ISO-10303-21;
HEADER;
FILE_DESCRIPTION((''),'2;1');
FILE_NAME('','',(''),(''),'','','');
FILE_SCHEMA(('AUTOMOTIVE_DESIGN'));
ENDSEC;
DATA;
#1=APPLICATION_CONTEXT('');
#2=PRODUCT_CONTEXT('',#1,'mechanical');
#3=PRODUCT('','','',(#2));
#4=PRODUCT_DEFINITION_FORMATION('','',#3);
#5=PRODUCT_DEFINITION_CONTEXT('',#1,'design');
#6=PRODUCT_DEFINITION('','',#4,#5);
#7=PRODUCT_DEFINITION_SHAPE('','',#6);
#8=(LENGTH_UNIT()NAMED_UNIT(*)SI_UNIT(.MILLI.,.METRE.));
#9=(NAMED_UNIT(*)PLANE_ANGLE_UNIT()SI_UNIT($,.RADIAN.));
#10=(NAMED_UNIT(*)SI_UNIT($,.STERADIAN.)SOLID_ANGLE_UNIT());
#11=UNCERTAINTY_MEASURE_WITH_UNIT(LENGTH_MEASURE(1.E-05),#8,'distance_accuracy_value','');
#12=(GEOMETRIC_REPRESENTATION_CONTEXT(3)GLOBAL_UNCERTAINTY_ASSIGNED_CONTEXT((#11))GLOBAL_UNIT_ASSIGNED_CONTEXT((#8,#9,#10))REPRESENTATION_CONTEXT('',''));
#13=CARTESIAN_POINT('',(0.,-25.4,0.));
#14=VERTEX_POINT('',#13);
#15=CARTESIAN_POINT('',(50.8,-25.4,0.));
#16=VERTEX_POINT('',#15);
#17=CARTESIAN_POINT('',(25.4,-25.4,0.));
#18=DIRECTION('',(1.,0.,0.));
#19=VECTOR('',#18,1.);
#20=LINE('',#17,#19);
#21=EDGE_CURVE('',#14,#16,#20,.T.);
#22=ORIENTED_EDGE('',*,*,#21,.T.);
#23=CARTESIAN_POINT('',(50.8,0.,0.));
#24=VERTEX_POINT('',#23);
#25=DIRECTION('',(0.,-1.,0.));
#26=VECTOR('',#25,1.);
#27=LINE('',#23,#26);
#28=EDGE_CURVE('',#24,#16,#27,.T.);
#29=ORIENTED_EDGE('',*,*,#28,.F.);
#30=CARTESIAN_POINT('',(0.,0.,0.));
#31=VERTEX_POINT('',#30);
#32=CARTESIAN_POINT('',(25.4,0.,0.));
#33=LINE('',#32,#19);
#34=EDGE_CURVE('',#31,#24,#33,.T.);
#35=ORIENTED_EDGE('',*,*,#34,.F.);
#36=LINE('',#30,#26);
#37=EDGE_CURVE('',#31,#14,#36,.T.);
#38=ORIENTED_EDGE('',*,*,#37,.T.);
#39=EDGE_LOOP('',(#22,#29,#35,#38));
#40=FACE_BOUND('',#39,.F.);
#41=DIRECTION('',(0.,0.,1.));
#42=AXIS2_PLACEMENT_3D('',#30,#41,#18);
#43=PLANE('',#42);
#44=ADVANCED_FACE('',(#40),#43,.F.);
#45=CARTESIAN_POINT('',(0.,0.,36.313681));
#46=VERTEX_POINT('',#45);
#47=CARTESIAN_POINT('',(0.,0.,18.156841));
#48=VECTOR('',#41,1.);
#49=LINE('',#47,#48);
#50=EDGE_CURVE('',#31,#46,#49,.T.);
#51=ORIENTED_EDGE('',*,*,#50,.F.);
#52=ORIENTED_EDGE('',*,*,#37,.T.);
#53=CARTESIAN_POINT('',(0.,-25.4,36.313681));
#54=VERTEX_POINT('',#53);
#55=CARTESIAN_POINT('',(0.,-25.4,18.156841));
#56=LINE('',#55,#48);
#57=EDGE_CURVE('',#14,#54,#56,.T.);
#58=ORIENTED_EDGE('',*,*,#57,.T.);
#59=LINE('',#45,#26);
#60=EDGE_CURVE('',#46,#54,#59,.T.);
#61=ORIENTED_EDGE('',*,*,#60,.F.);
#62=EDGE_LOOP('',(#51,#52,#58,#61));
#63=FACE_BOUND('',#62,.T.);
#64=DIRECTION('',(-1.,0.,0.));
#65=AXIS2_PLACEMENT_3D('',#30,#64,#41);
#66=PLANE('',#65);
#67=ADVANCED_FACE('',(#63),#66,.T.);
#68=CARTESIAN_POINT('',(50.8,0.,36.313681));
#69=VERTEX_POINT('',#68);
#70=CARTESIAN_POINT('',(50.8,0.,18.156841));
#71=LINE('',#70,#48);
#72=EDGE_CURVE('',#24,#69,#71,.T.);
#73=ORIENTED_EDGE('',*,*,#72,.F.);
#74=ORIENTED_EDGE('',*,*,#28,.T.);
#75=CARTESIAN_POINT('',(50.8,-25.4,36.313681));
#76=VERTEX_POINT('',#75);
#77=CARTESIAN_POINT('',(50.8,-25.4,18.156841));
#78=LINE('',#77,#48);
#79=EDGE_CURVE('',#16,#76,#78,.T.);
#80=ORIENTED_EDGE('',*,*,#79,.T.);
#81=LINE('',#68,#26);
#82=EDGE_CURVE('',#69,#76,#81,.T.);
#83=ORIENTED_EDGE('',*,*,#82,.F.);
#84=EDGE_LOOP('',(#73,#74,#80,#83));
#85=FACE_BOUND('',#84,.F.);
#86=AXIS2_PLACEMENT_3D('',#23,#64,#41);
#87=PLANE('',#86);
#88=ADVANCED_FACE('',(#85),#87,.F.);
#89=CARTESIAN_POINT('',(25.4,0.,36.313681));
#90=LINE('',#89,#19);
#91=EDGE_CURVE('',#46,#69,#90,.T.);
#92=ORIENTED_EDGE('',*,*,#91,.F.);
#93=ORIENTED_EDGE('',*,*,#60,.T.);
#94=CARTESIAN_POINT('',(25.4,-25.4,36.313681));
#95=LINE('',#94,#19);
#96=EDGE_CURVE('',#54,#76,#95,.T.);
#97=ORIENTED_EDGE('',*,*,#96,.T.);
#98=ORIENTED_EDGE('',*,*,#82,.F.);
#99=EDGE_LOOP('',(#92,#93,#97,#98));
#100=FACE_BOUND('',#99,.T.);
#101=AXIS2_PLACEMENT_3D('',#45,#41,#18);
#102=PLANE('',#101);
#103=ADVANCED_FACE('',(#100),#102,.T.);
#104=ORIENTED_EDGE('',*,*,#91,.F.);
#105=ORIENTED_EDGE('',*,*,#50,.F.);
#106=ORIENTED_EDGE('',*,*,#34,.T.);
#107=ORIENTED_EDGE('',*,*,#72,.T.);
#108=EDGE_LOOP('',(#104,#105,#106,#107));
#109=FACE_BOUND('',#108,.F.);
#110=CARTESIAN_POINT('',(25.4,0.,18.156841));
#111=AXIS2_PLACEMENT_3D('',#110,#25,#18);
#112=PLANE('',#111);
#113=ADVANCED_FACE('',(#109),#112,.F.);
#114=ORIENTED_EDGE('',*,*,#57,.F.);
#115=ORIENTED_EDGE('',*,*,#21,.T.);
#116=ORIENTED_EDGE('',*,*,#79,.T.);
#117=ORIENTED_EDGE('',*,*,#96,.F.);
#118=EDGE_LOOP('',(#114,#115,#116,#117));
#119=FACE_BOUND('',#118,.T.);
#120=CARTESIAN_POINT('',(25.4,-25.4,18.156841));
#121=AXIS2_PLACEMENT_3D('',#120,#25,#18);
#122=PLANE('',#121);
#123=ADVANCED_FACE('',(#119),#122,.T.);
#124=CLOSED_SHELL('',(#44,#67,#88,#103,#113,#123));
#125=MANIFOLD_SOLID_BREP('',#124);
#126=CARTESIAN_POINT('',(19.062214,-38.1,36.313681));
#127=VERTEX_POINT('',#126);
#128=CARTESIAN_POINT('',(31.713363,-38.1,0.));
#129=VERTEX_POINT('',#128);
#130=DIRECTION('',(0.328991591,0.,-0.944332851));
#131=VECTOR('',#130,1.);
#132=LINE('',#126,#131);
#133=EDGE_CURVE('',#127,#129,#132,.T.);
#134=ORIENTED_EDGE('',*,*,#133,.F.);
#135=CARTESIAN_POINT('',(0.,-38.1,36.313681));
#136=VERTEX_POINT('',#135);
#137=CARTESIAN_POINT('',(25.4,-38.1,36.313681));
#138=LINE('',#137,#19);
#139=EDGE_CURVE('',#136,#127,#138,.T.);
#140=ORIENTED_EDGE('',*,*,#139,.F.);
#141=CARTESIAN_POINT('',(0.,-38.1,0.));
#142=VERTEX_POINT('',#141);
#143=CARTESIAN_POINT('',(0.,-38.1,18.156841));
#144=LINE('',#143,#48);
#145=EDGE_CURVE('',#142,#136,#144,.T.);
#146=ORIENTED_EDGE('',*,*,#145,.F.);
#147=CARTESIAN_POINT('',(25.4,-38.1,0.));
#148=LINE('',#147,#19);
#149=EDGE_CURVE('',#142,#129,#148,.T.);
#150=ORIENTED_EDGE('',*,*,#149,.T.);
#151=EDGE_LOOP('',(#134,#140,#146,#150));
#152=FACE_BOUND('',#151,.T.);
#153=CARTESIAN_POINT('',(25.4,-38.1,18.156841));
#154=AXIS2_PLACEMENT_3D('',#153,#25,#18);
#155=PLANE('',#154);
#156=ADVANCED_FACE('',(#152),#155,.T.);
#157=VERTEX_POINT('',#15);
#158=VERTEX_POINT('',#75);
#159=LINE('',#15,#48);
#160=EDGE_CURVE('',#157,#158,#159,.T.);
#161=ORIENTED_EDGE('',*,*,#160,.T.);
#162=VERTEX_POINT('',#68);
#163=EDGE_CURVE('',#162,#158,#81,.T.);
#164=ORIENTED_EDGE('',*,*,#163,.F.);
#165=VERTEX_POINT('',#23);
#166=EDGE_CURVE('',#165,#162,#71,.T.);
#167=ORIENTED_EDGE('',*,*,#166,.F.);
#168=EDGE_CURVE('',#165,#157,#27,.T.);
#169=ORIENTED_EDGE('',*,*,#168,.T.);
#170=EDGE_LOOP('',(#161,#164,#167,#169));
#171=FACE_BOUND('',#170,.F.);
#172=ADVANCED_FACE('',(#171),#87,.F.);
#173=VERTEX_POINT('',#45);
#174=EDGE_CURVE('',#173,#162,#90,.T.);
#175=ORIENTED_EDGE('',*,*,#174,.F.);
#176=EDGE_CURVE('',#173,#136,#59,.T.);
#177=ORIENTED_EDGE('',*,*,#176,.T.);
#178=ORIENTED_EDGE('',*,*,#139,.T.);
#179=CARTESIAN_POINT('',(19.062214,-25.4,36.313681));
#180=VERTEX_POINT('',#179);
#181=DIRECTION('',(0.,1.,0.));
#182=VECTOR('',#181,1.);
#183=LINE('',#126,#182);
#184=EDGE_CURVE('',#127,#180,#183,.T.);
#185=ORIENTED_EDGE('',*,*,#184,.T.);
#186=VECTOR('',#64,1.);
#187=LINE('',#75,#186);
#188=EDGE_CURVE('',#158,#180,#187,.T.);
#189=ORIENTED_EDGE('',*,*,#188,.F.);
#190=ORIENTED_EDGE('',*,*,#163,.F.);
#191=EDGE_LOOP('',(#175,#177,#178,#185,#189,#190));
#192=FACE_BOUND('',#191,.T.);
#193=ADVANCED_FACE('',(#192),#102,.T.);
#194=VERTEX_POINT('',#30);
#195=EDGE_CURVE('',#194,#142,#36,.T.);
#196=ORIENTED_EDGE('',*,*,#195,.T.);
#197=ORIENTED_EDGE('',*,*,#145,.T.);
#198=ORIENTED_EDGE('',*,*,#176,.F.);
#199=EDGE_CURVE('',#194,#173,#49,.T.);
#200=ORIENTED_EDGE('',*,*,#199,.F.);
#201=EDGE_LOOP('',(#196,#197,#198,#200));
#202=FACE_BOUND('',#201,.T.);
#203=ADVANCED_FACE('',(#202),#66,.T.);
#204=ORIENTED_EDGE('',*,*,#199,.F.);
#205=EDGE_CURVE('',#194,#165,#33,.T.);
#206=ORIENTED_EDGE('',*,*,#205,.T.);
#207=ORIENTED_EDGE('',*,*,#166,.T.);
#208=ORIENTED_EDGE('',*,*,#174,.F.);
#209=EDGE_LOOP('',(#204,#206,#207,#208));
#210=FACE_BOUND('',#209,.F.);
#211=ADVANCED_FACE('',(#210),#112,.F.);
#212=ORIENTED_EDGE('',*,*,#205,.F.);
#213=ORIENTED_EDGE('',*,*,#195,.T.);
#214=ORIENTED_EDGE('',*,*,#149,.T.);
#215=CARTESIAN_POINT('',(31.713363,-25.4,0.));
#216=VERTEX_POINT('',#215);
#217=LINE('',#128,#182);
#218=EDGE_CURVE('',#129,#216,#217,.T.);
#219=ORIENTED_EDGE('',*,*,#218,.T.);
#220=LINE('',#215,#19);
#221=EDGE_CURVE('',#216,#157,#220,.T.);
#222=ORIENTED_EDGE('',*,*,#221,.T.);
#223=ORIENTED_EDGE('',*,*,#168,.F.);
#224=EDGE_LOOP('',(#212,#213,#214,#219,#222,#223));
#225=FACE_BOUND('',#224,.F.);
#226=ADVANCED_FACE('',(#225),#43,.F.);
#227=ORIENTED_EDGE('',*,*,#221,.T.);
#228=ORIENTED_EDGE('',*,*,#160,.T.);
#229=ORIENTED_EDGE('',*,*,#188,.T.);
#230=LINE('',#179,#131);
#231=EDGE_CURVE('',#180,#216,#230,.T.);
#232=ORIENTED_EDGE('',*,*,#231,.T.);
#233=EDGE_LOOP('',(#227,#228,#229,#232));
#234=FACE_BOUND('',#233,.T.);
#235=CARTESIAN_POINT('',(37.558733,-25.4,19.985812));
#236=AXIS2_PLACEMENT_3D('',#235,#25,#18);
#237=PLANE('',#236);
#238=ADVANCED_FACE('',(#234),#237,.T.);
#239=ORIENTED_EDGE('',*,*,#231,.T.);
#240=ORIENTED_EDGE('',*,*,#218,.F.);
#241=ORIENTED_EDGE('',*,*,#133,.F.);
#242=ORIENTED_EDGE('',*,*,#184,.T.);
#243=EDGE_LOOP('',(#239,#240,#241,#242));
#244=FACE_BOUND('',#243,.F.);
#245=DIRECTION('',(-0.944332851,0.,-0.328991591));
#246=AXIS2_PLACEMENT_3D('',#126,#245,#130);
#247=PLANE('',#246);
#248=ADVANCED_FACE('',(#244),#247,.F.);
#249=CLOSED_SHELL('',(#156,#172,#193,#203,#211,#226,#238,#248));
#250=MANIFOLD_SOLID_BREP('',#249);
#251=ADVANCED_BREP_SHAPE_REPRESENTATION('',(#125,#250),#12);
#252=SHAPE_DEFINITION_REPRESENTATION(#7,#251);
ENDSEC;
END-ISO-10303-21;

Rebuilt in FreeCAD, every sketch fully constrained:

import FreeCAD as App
import Part
import Sketcher

V = App.Vector
Q = App.Units.Quantity


def add_polygon(sketch, points):
    """Adds a closed chain of lines whose ends are joined by coincident constraints."""
    first, n = sketch.GeometryCount, len(points)
    for a, b in zip(points, points[1:] + points[:1]):
        sketch.addGeometry(Part.LineSegment(App.Vector(*a, 0), App.Vector(*b, 0)), False)
    for i in range(n):
        sketch.addConstraint(Sketcher.Constraint("Coincident", first + i, 2, first + (i + 1) % n, 1))

doc = App.newDocument("Part")
body = doc.addObject("PartDesign::Body", "Body")

sketch1 = body.newObject("Sketcher::SketchObject", "Sketch")
sketch1.AttachmentSupport = (doc.getObject("XZ_Plane"), [""])
sketch1.MapMode = "FlatFace"
add_polygon(sketch1, [(0, 36.313681), (0, 0), (50.8, 0), (50.8, 36.313681)])
sketch1.addConstraint(Sketcher.Constraint("Vertical", 0))
sketch1.addConstraint(Sketcher.Constraint("Horizontal", 1))
sketch1.addConstraint(Sketcher.Constraint("Vertical", 2))
sketch1.addConstraint(Sketcher.Constraint("Horizontal", 3))
sketch1.addConstraint(Sketcher.Constraint("Coincident", 0, 2, -1, 1))
sketch1.addConstraint(Sketcher.Constraint("DistanceX", 1, 1, 1, 2, Q("2 in")))
sketch1.addConstraint(Sketcher.Constraint("DistanceY", 0, 2, 0, 1, Q("36.313681 mm")))
pad1 = body.newObject("PartDesign::Pad", "Pad")
pad1.Profile = sketch1
pad1.Length = Q("1 in")
body2 = doc.addObject("PartDesign::Body", "Body001")

sketch2 = body2.newObject("Sketcher::SketchObject", "Sketch001")
sketch2.AttachmentSupport = (doc.getObject("XZ_Plane001"), [""])
sketch2.MapMode = "FlatFace"
add_polygon(sketch2, [(0, 36.313681), (0, 0), (50.8, 0), (50.8, 36.313681)])
sketch2.addConstraint(Sketcher.Constraint("Vertical", 0))
sketch2.addConstraint(Sketcher.Constraint("Horizontal", 1))
sketch2.addConstraint(Sketcher.Constraint("Vertical", 2))
sketch2.addConstraint(Sketcher.Constraint("Horizontal", 3))
sketch2.addConstraint(Sketcher.Constraint("Coincident", 0, 2, -1, 1))
sketch2.addConstraint(Sketcher.Constraint("DistanceX", 1, 1, 1, 2, Q("2 in")))
sketch2.addConstraint(Sketcher.Constraint("DistanceY", 0, 2, 0, 1, Q("36.313681 mm")))
pad2 = body2.newObject("PartDesign::Pad", "Pad001")
pad2.Profile = sketch2
pad2.Length = Q("1.5 in")

sketch3 = body2.newObject("Sketcher::SketchObject", "Sketch002")
sketch3.AttachmentSupport = (doc.getObject("XZ_Plane001"), [""])
sketch3.MapMode = "FlatFace"
sketch3.AttachmentOffset = App.Placement(V(0, 0, 1.5 * 25.4), App.Rotation())
add_polygon(sketch3, [(50.8, 36.313681), (19.062214, 36.313681), (31.713363, 0), (50.8, 0)])
sketch3.addConstraint(Sketcher.Constraint("Horizontal", 0))
sketch3.addConstraint(Sketcher.Constraint("Horizontal", 2))
sketch3.addConstraint(Sketcher.Constraint("Vertical", 3))
sketch3.addConstraint(Sketcher.Constraint("PointOnObject", 1, 2, -1))
sketch3.addConstraint(Sketcher.Constraint("DistanceX", -1, 1, 2, 2, Q("2 in")))
sketch3.addConstraint(Sketcher.Constraint("DistanceY", 3, 1, 3, 2, Q("36.313681 mm")))
sketch3.addConstraint(Sketcher.Constraint("DistanceX", 0, 2, 0, 1, Q("31.737786 mm")))
sketch3.addConstraint(Sketcher.Constraint("DistanceX", 2, 1, 2, 2, Q("19.086637 mm")))
pocket1 = body2.newObject("PartDesign::Pocket", "Pocket")
pocket1.Profile = sketch3
pocket1.Length = Q("0.5 in")

doc.recompute()
